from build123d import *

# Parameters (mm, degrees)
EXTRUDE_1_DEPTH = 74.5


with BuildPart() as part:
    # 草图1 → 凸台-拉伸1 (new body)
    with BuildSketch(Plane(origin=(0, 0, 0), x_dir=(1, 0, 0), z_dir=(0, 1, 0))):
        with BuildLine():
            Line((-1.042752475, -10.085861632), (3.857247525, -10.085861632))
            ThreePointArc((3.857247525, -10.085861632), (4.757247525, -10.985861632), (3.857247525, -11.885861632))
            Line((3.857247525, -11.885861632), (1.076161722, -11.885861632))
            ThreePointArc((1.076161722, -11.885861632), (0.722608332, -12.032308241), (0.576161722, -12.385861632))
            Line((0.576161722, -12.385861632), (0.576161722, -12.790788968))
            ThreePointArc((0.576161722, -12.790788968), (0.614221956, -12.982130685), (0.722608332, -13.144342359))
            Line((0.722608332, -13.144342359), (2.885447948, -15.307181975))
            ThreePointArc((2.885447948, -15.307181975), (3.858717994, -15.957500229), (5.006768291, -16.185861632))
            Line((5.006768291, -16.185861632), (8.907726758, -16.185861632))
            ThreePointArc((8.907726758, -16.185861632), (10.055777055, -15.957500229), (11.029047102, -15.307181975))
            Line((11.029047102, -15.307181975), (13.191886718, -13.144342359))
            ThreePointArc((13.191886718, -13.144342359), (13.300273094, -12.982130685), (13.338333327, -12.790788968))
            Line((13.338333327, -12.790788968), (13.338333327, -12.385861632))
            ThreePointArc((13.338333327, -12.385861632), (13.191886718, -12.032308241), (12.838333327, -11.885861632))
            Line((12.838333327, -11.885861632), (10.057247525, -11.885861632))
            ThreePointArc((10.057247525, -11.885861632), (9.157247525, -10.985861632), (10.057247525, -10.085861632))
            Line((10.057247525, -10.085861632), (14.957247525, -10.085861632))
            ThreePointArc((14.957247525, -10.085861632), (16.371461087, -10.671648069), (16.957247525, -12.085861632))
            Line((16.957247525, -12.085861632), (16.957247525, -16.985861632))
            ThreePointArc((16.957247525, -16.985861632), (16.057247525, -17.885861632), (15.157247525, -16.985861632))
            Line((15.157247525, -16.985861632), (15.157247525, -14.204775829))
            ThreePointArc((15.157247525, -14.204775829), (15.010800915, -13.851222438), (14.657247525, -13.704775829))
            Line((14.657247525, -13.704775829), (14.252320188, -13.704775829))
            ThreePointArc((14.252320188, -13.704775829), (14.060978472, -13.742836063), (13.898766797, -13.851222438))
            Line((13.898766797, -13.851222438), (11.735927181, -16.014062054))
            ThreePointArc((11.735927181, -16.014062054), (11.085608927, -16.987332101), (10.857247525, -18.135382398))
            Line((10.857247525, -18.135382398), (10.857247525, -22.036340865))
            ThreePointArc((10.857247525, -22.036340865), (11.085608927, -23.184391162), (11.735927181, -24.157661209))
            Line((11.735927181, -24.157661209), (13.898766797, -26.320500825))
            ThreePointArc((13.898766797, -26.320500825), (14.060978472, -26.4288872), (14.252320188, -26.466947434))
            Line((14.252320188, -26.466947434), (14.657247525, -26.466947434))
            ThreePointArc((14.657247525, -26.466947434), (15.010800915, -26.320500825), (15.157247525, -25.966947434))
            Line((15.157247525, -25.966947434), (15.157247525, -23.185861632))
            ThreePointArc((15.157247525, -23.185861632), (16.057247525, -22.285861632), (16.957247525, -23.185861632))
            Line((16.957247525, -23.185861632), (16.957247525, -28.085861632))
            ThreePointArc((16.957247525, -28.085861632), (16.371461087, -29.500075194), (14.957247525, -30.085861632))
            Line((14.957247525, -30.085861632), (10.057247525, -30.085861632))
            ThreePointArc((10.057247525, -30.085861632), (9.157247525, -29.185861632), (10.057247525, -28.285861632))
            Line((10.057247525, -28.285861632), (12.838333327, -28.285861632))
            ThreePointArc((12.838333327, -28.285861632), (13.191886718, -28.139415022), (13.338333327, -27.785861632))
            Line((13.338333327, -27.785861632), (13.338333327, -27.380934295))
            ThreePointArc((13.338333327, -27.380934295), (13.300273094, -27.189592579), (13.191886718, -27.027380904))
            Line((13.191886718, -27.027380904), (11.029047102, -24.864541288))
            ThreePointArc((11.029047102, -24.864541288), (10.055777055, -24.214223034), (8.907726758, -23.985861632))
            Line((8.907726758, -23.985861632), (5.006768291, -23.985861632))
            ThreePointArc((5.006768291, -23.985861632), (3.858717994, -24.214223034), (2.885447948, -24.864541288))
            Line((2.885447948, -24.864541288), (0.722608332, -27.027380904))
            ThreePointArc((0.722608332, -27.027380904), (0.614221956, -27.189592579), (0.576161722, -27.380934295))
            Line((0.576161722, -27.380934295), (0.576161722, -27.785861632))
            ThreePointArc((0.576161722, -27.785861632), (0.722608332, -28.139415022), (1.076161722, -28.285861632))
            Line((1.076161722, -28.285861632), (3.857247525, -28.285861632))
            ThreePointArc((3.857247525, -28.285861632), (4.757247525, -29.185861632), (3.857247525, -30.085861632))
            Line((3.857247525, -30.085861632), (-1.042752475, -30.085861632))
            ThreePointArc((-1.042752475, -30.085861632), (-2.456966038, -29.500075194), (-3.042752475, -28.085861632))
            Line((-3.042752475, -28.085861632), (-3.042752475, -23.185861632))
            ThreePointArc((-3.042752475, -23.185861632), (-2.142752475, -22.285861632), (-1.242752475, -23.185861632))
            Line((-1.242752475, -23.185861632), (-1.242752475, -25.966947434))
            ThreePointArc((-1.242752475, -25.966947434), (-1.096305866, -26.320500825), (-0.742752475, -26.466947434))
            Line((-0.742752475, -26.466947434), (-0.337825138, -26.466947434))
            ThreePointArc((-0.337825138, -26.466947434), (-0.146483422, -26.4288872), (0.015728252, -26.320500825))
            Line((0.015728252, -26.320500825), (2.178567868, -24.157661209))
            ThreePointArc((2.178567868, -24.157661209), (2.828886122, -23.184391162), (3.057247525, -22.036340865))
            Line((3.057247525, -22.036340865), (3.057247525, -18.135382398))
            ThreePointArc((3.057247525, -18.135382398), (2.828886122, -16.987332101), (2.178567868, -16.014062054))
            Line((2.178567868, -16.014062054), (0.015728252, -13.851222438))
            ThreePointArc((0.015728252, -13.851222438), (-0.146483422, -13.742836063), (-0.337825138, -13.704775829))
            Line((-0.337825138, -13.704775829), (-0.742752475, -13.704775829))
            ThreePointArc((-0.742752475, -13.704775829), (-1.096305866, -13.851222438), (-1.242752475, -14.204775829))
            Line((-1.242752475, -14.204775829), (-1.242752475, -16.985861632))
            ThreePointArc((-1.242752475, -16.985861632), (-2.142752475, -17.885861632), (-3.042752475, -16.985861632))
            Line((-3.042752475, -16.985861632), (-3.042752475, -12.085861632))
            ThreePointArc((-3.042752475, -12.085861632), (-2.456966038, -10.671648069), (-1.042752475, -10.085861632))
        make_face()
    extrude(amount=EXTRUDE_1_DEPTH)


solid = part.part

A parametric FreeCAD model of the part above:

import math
import FreeCAD as App
import Part
import Sketcher

V = App.Vector

doc = App.newDocument("Part")
params = doc.addObject("Spreadsheet::Sheet", "Params")
for row, (alias, value) in enumerate([
    ("sketch1_radius", "2 mm"),
    ("sketch1_radius2", "3 mm"),
    ("sketch1_radius3", "0.9 mm"),
    ("sketch1_radius4", "0.5 mm"),
    ("sketch1_width", "4.9 mm"),
    ("pad1_length", "74.5 mm"),
], start=1):
    params.set(f"A{row}", alias)
    params.set(f"B{row}", "=" + value)
    params.setAlias(f"B{row}", alias)

body = doc.addObject("PartDesign::Body", "Body")

# Sketch on XZ plane
sketch1 = body.newObject("Sketcher::SketchObject", "Sketch")
sketch1.AttachmentSupport = (doc.getObject("XZ_Plane"), [""])
sketch1.MapMode = "FlatFace"
sketch1.addGeometry([
    Part.LineSegment(V(3.86, 10.09, 0), V(-1.04, 10.09, 0)),  # 0
    Part.ArcOfCircle(Part.Circle(V(-1.04, 12.09, 0), V(0, 0, 1), 2), math.radians(180), math.radians(270)),  # 1
    Part.LineSegment(V(-3.04, 12.09, 0), V(-3.04, 16.99, 0)),  # 2
    Part.ArcOfCircle(Part.Circle(V(-2.14, 16.99, 0), V(0, 0, 1), 0.9), math.radians(0), math.radians(180)),  # 3
    Part.LineSegment(V(-1.24, 16.99, 0), V(-1.24, 14.2, 0)),  # 4
    Part.ArcOfCircle(Part.Circle(V(-0.74, 14.2, 0), V(0, 0, 1), 0.5), math.radians(180), math.radians(270)),  # 5
    Part.LineSegment(V(-0.74, 13.7, 0), V(-0.34, 13.7, 0)),  # 6
    Part.ArcOfCircle(Part.Circle(V(-0.34, 14.2, 0), V(0, 0, 1), 0.5), math.radians(-90), math.radians(-45)),  # 7
    Part.LineSegment(V(0.02, 13.85, 0), V(2.18, 16.01, 0)),  # 8
    Part.ArcOfCircle(Part.Circle(V(0.06, 18.14, 0), V(0, 0, 1), 3), math.radians(-45), math.radians(0)),  # 9
    Part.LineSegment(V(3.06, 18.14, 0), V(3.06, 22.04, 0)),  # 10
    Part.ArcOfCircle(Part.Circle(V(0.06, 22.04, 0), V(0, 0, 1), 3), math.radians(0), math.radians(45)),  # 11
    Part.LineSegment(V(2.18, 24.16, 0), V(0.02, 26.32, 0)),  # 12
    Part.ArcOfCircle(Part.Circle(V(-0.34, 25.97, 0), V(0, 0, 1), 0.5), math.radians(45), math.radians(90)),  # 13
    Part.LineSegment(V(-0.34, 26.47, 0), V(-0.74, 26.47, 0)),  # 14
    Part.ArcOfCircle(Part.Circle(V(-0.74, 25.97, 0), V(0, 0, 1), 0.5), math.radians(90), math.radians(180)),  # 15
    Part.LineSegment(V(-1.24, 25.97, 0), V(-1.24, 23.19, 0)),  # 16
    Part.ArcOfCircle(Part.Circle(V(-2.14, 23.19, 0), V(0, 0, 1), 0.9), math.radians(180), math.radians(360)),  # 17
    Part.LineSegment(V(-3.04, 23.19, 0), V(-3.04, 28.09, 0)),  # 18
    Part.ArcOfCircle(Part.Circle(V(-1.04, 28.09, 0), V(0, 0, 1), 2), math.radians(90), math.radians(180)),  # 19
    Part.LineSegment(V(-1.04, 30.09, 0), V(3.86, 30.09, 0)),  # 20
    Part.ArcOfCircle(Part.Circle(V(3.86, 29.19, 0), V(0, 0, 1), 0.9), math.radians(-90), math.radians(90)),  # 21
    Part.LineSegment(V(3.86, 28.29, 0), V(1.08, 28.29, 0)),  # 22
    Part.ArcOfCircle(Part.Circle(V(1.08, 27.79, 0), V(0, 0, 1), 0.5), math.radians(90), math.radians(180)),  # 23
    Part.LineSegment(V(0.58, 27.79, 0), V(0.58, 27.38, 0)),  # 24
    Part.ArcOfCircle(Part.Circle(V(1.08, 27.38, 0), V(0, 0, 1), 0.5), math.radians(-180), math.radians(-135)),  # 25
    Part.LineSegment(V(0.72, 27.03, 0), V(2.89, 24.86, 0)),  # 26
    Part.ArcOfCircle(Part.Circle(V(5.01, 26.99, 0), V(0, 0, 1), 3), math.radians(-135), math.radians(-90)),  # 27
    Part.LineSegment(V(5.01, 23.99, 0), V(8.91, 23.99, 0)),  # 28
    Part.ArcOfCircle(Part.Circle(V(8.91, 26.99, 0), V(0, 0, 1), 3), math.radians(-90), math.radians(-45)),  # 29
    Part.LineSegment(V(11.03, 24.86, 0), V(13.19, 27.03, 0)),  # 30
    Part.ArcOfCircle(Part.Circle(V(12.84, 27.38, 0), V(0, 0, 1), 0.5), math.radians(-45), math.radians(0)),  # 31
    Part.LineSegment(V(13.34, 27.38, 0), V(13.34, 27.79, 0)),  # 32
    Part.ArcOfCircle(Part.Circle(V(12.84, 27.79, 0), V(0, 0, 1), 0.5), math.radians(0), math.radians(90)),  # 33
    Part.LineSegment(V(12.84, 28.29, 0), V(10.06, 28.29, 0)),  # 34
    Part.ArcOfCircle(Part.Circle(V(10.06, 29.19, 0), V(0, 0, 1), 0.9), math.radians(90), math.radians(270)),  # 35
    Part.LineSegment(V(10.06, 30.09, 0), V(14.96, 30.09, 0)),  # 36
    Part.ArcOfCircle(Part.Circle(V(14.96, 28.09, 0), V(0, 0, 1), 2), math.radians(0), math.radians(90)),  # 37
    Part.LineSegment(V(16.96, 28.09, 0), V(16.96, 23.19, 0)),  # 38
    Part.ArcOfCircle(Part.Circle(V(16.06, 23.19, 0), V(0, 0, 1), 0.9), math.radians(180), math.radians(360)),  # 39
    Part.LineSegment(V(15.16, 23.19, 0), V(15.16, 25.97, 0)),  # 40
    Part.ArcOfCircle(Part.Circle(V(14.66, 25.97, 0), V(0, 0, 1), 0.5), math.radians(0), math.radians(90)),  # 41
    Part.LineSegment(V(14.66, 26.47, 0), V(14.25, 26.47, 0)),  # 42
    Part.ArcOfCircle(Part.Circle(V(14.25, 25.97, 0), V(0, 0, 1), 0.5), math.radians(90), math.radians(135)),  # 43
    Part.LineSegment(V(13.9, 26.32, 0), V(11.74, 24.16, 0)),  # 44
    Part.ArcOfCircle(Part.Circle(V(13.86, 22.04, 0), V(0, 0, 1), 3), math.radians(135), math.radians(180)),  # 45
    Part.LineSegment(V(10.86, 22.04, 0), V(10.86, 18.14, 0)),  # 46
    Part.ArcOfCircle(Part.Circle(V(13.86, 18.14, 0), V(0, 0, 1), 3), math.radians(180), math.radians(225)),  # 47
    Part.LineSegment(V(11.74, 16.01, 0), V(13.9, 13.85, 0)),  # 48
    Part.ArcOfCircle(Part.Circle(V(14.25, 14.2, 0), V(0, 0, 1), 0.5), math.radians(-135), math.radians(-90)),  # 49
    Part.LineSegment(V(14.25, 13.7, 0), V(14.66, 13.7, 0)),  # 50
    Part.ArcOfCircle(Part.Circle(V(14.66, 14.2, 0), V(0, 0, 1), 0.5), math.radians(-90), math.radians(0)),  # 51
    Part.LineSegment(V(15.16, 14.2, 0), V(15.16, 16.99, 0)),  # 52
    Part.ArcOfCircle(Part.Circle(V(16.06, 16.99, 0), V(0, 0, 1), 0.9), math.radians(0), math.radians(180)),  # 53
    Part.LineSegment(V(16.96, 16.99, 0), V(16.96, 12.09, 0)),  # 54
    Part.ArcOfCircle(Part.Circle(V(14.96, 12.09, 0), V(0, 0, 1), 2), math.radians(-90), math.radians(0)),  # 55
    Part.LineSegment(V(14.96, 10.09, 0), V(10.06, 10.09, 0)),  # 56
    Part.ArcOfCircle(Part.Circle(V(10.06, 10.99, 0), V(0, 0, 1), 0.9), math.radians(90), math.radians(270)),  # 57
    Part.LineSegment(V(10.06, 11.89, 0), V(12.84, 11.89, 0)),  # 58
    Part.ArcOfCircle(Part.Circle(V(12.84, 12.39, 0), V(0, 0, 1), 0.5), math.radians(-90), math.radians(0)),  # 59
    Part.LineSegment(V(13.34, 12.39, 0), V(13.34, 12.79, 0)),  # 60
    Part.ArcOfCircle(Part.Circle(V(12.84, 12.79, 0), V(0, 0, 1), 0.5), math.radians(0), math.radians(45)),  # 61
    Part.LineSegment(V(13.19, 13.14, 0), V(11.03, 15.31, 0)),  # 62
    Part.ArcOfCircle(Part.Circle(V(8.91, 13.19, 0), V(0, 0, 1), 3), math.radians(45), math.radians(90)),  # 63
    Part.LineSegment(V(8.91, 16.19, 0), V(5.01, 16.19, 0)),  # 64
    Part.ArcOfCircle(Part.Circle(V(5.01, 13.19, 0), V(0, 0, 1), 3), math.radians(90), math.radians(135)),  # 65
    Part.LineSegment(V(2.89, 15.31, 0), V(0.72, 13.14, 0)),  # 66
    Part.ArcOfCircle(Part.Circle(V(1.08, 12.79, 0), V(0, 0, 1), 0.5), math.radians(135), math.radians(180)),  # 67
    Part.LineSegment(V(0.58, 12.79, 0), V(0.58, 12.39, 0)),  # 68
    Part.ArcOfCircle(Part.Circle(V(1.08, 12.39, 0), V(0, 0, 1), 0.5), math.radians(180), math.radians(270)),  # 69
    Part.LineSegment(V(1.08, 11.89, 0), V(3.86, 11.89, 0)),  # 70
    Part.ArcOfCircle(Part.Circle(V(3.86, 10.99, 0), V(0, 0, 1), 0.9), math.radians(-90), math.radians(90)),  # 71
], False)
sketch1.addConstraint([
    Sketcher.Constraint("Tangent", 0, 2, 1, 2),
    Sketcher.Constraint("Tangent", 1, 1, 2, 1),
    Sketcher.Constraint("Tangent", 2, 2, 3, 2),
    Sketcher.Constraint("Tangent", 3, 1, 4, 1),
    Sketcher.Constraint("Tangent", 4, 2, 5, 1),
    Sketcher.Constraint("Tangent", 5, 2, 6, 1),
    Sketcher.Constraint("Tangent", 6, 2, 7, 1),
    Sketcher.Constraint("Tangent", 7, 2, 8, 1),
    Sketcher.Constraint("Tangent", 8, 2, 9, 1),
    Sketcher.Constraint("Tangent", 9, 2, 10, 1),
    Sketcher.Constraint("Tangent", 10, 2, 11, 1),
    Sketcher.Constraint("Tangent", 11, 2, 12, 1),
    Sketcher.Constraint("Tangent", 12, 2, 13, 1),
    Sketcher.Constraint("Tangent", 13, 2, 14, 1),
    Sketcher.Constraint("Tangent", 14, 2, 15, 1),
    Sketcher.Constraint("Tangent", 15, 2, 16, 1),
    Sketcher.Constraint("Tangent", 16, 2, 17, 2),
    Sketcher.Constraint("Tangent", 17, 1, 18, 1),
    Sketcher.Constraint("Tangent", 18, 2, 19, 2),
    Sketcher.Constraint("Tangent", 19, 1, 20, 1),
    Sketcher.Constraint("Tangent", 20, 2, 21, 2),
    Sketcher.Constraint("Tangent", 21, 1, 22, 1),
    Sketcher.Constraint("Tangent", 22, 2, 23, 1),
    Sketcher.Constraint("Tangent", 23, 2, 24, 1),
    Sketcher.Constraint("Tangent", 24, 2, 25, 1),
    Sketcher.Constraint("Tangent", 25, 2, 26, 1),
    Sketcher.Constraint("Tangent", 26, 2, 27, 1),
    Sketcher.Constraint("Tangent", 27, 2, 28, 1),
    Sketcher.Constraint("Tangent", 28, 2, 29, 1),
    Sketcher.Constraint("Tangent", 29, 2, 30, 1),
    Sketcher.Constraint("Tangent", 30, 2, 31, 1),
    Sketcher.Constraint("Tangent", 31, 2, 32, 1),
    Sketcher.Constraint("Tangent", 32, 2, 33, 1),
    Sketcher.Constraint("Tangent", 33, 2, 34, 1),
    Sketcher.Constraint("Tangent", 34, 2, 35, 2),
    Sketcher.Constraint("Tangent", 35, 1, 36, 1),
    Sketcher.Constraint("Tangent", 36, 2, 37, 2),
    Sketcher.Constraint("Tangent", 37, 1, 38, 1),
    Sketcher.Constraint("Tangent", 38, 2, 39, 2),
    Sketcher.Constraint("Tangent", 39, 1, 40, 1),
    Sketcher.Constraint("Tangent", 40, 2, 41, 1),
    Sketcher.Constraint("Tangent", 41, 2, 42, 1),
    Sketcher.Constraint("Tangent", 42, 2, 43, 1),
    Sketcher.Constraint("Tangent", 43, 2, 44, 1),
    Sketcher.Constraint("Tangent", 44, 2, 45, 1),
    Sketcher.Constraint("Tangent", 45, 2, 46, 1),
    Sketcher.Constraint("Tangent", 46, 2, 47, 1),
    Sketcher.Constraint("Tangent", 47, 2, 48, 1),
    Sketcher.Constraint("Tangent", 48, 2, 49, 1),
    Sketcher.Constraint("Tangent", 49, 2, 50, 1),
    Sketcher.Constraint("Tangent", 50, 2, 51, 1),
    Sketcher.Constraint("Tangent", 51, 2, 52, 1),
    Sketcher.Constraint("Tangent", 52, 2, 53, 2),
    Sketcher.Constraint("Tangent", 53, 1, 54, 1),
    Sketcher.Constraint("Tangent", 54, 2, 55, 2),
    Sketcher.Constraint("Tangent", 55, 1, 56, 1),
    Sketcher.Constraint("Tangent", 56, 2, 57, 2),
    Sketcher.Constraint("Tangent", 57, 1, 58, 1),
    Sketcher.Constraint("Tangent", 58, 2, 59, 1),
    Sketcher.Constraint("Tangent", 59, 2, 60, 1),
    Sketcher.Constraint("Tangent", 60, 2, 61, 1),
    Sketcher.Constraint("Tangent", 61, 2, 62, 1),
    Sketcher.Constraint("Tangent", 62, 2, 63, 1),
    Sketcher.Constraint("Tangent", 63, 2, 64, 1),
    Sketcher.Constraint("Tangent", 64, 2, 65, 1),
    Sketcher.Constraint("Tangent", 65, 2, 66, 1),
    Sketcher.Constraint("Tangent", 66, 2, 67, 1),
    Sketcher.Constraint("Tangent", 67, 2, 68, 1),
    Sketcher.Constraint("Tangent", 68, 2, 69, 1),
    Sketcher.Constraint("Tangent", 69, 2, 70, 1),
    Sketcher.Constraint("Tangent", 70, 2, 71, 2),
    Sketcher.Constraint("Tangent", 71, 1, 0, 1),
    Sketcher.Constraint("Horizontal", 0),
    Sketcher.Constraint("Vertical", 2),
    Sketcher.Constraint("Vertical", 4),
    Sketcher.Constraint("Horizontal", 6),
    Sketcher.Constraint("Vertical", 10),
    Sketcher.Constraint("Horizontal", 14),
    Sketcher.Constraint("Vertical", 16),
    Sketcher.Constraint("Vertical", 18),
    Sketcher.Constraint("Horizontal", 20),
    Sketcher.Constraint("Horizontal", 22),
    Sketcher.Constraint("Vertical", 24),
    Sketcher.Constraint("Horizontal", 28),
    Sketcher.Constraint("Vertical", 32),
    Sketcher.Constraint("Horizontal", 34),
    Sketcher.Constraint("Horizontal", 36),
    Sketcher.Constraint("Vertical", 38),
    Sketcher.Constraint("Vertical", 40),
    Sketcher.Constraint("Horizontal", 42),
    Sketcher.Constraint("Vertical", 46),
    Sketcher.Constraint("Horizontal", 50),
    Sketcher.Constraint("Vertical", 52),
    Sketcher.Constraint("Vertical", 54),
    Sketcher.Constraint("Horizontal", 56),
    Sketcher.Constraint("Horizontal", 58),
    Sketcher.Constraint("Vertical", 60),
    Sketcher.Constraint("Horizontal", 64),
    Sketcher.Constraint("Vertical", 68),
    Sketcher.Constraint("Horizontal", 70),
    Sketcher.Constraint("Equal", 5, 7),
    Sketcher.Constraint("Equal", 9, 11),
    Sketcher.Constraint("Equal", 7, 13),
    Sketcher.Constraint("Equal", 13, 15),
    Sketcher.Constraint("Equal", 3, 17),
    Sketcher.Constraint("Equal", 1, 19),
    Sketcher.Constraint("Equal", 17, 21),
    Sketcher.Constraint("Equal", 15, 23),
    Sketcher.Constraint("Equal", 23, 25),
    Sketcher.Constraint("Equal", 11, 27),
    Sketcher.Constraint("Equal", 27, 29),
    Sketcher.Constraint("Equal", 25, 31),
    Sketcher.Constraint("Equal", 31, 33),
    Sketcher.Constraint("Equal", 21, 35),
    Sketcher.Constraint("Equal", 19, 37),
    Sketcher.Constraint("Equal", 35, 39),
    Sketcher.Constraint("Equal", 33, 41),
    Sketcher.Constraint("Equal", 41, 43),
    Sketcher.Constraint("Equal", 29, 45),
    Sketcher.Constraint("Equal", 45, 47),
    Sketcher.Constraint("Equal", 43, 49),
    Sketcher.Constraint("Equal", 49, 51),
    Sketcher.Constraint("Equal", 39, 53),
    Sketcher.Constraint("Equal", 37, 55),
    Sketcher.Constraint("Equal", 53, 57),
    Sketcher.Constraint("Equal", 51, 59),
    Sketcher.Constraint("Equal", 59, 61),
    Sketcher.Constraint("Equal", 47, 63),
    Sketcher.Constraint("Equal", 63, 65),
    Sketcher.Constraint("Equal", 61, 67),
    Sketcher.Constraint("Equal", 67, 69),
    Sketcher.Constraint("Equal", 57, 71),
    Sketcher.Constraint("Perpendicular", 8, 12),
    Sketcher.Constraint("Parallel", 12, 26),
    Sketcher.Constraint("Perpendicular", 26, 30),
    Sketcher.Constraint("Parallel", 30, 44),
    Sketcher.Constraint("Perpendicular", 44, 48),
    Sketcher.Constraint("Parallel", 48, 62),
    Sketcher.Constraint("Perpendicular", 62, 66),
    Sketcher.Constraint("Horizontal", 25, 3, 31, 3),
    Sketcher.Constraint("Horizontal", 23, 3, 33, 3),
    Sketcher.Constraint("Horizontal", 17, 3, 39, 3),
    Sketcher.Constraint("Horizontal", 15, 3, 41, 3),
    Sketcher.Constraint("Horizontal", 11, 3, 45, 3),
    Sketcher.Constraint("Horizontal", 9, 3, 47, 3),
    Sketcher.Constraint("Horizontal", 7, 3, 49, 3),
    Sketcher.Constraint("Horizontal", 3, 3, 53, 3),
    Sketcher.Constraint("Horizontal", 1, 3, 55, 3),
    Sketcher.Constraint("Horizontal", 61, 3, 67, 3),
    Sketcher.Constraint("Horizontal", 26, 2, 29, 2),
    Sketcher.Constraint("Vertical", 7, 3, 13, 3),
    Sketcher.Constraint("Vertical", 5, 3, 15, 3),
    Sketcher.Constraint("Vertical", 41, 3, 51, 3),
    Sketcher.Constraint("Vertical", 35, 3, 57, 3),
    Sketcher.Constraint("Vertical", 33, 3, 59, 3),
    Sketcher.Constraint("Vertical", 29, 3, 63, 3),
    Sketcher.Constraint("Vertical", 27, 3, 65, 3),
    Sketcher.Constraint("Vertical", 21, 3, 71, 3),
    Sketcher.Constraint("Equal", 22, 34),
    Sketcher.Constraint("Equal", 20, 36),
    Sketcher.Constraint("Equal", 14, 42),
    Sketcher.Constraint("Equal", 56, 2),
    Sketcher.Constraint("Equal", 70, 4),
    Sketcher.Constraint("Equal", 64, 10),
    Sketcher.Constraint("Equal", 4, 16),
    Sketcher.Constraint("Equal", 2, 18),
    Sketcher.Constraint("Equal", 50, 24),
    Sketcher.Constraint("Equal", 32, 60),
    Sketcher.Constraint("Equal", 12, 26),
    Sketcher.Constraint("Radius", 1, 2.0),
    Sketcher.Constraint("Radius", 9, 3.0),
    Sketcher.Constraint("Radius", 3, 0.9),
    Sketcher.Constraint("Radius", 5, 0.5),
    Sketcher.Constraint("DistanceX", 0, 2, 0, 1, 4.9),
    Sketcher.Constraint("DistanceX", 28, 1, 28, 2, 3.900958),
    Sketcher.Constraint("DistanceY", -1, 1, 12, 2, 26.320501),
    Sketcher.Constraint("DistanceX", 6, 1, 6, 2, 0.404927),
    Sketcher.Constraint("DistanceX", 22, 2, 22, 1, 2.781086),
    Sketcher.Constraint("DistanceY", -1, 1, 1, 3, 12.085862),
    Sketcher.Constraint("DistanceX", -1, 1, 23, 3, 1.076162),
])
sketch1.setExpression("Constraints[169]", "Params.sketch1_radius")
sketch1.setExpression("Constraints[170]", "Params.sketch1_radius2")
sketch1.setExpression("Constraints[171]", "Params.sketch1_radius3")
sketch1.setExpression("Constraints[172]", "Params.sketch1_radius4")
sketch1.setExpression("Constraints[173]", "Params.sketch1_width")
pad1 = body.newObject("PartDesign::Pad", "Pad")
pad1.Profile = sketch1
pad1.setExpression("Length", "Params.pad1_length")
pad1.Reversed = True

doc.recompute()
